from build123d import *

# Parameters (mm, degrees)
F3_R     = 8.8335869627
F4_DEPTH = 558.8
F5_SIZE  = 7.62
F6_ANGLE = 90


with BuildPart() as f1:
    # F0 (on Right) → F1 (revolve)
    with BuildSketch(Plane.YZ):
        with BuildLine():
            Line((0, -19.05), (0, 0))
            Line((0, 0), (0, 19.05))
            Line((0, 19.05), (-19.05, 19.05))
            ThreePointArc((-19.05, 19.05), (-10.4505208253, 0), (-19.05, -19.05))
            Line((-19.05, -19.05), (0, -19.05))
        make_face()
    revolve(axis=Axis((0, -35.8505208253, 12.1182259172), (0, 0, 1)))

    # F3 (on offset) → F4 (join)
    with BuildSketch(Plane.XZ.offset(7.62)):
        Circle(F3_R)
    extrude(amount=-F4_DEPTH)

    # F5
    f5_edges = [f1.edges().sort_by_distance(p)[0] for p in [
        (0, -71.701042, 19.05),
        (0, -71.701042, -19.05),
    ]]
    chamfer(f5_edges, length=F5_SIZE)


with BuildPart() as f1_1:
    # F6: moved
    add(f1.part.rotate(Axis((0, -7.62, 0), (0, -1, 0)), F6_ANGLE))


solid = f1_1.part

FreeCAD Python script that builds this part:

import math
import FreeCAD as App
import Part
import Sketcher
Q = App.Units.Quantity


def edges_at(feature, points):
    """Names of the edges that pass closest to the given points."""
    edges = feature.Shape.Edges
    near = lambda p: min(range(len(edges)), key=lambda i: edges[i].distToShape(Part.Vertex(*p))[0])
    return sorted({f"Edge{near(p) + 1}" for p in points})

doc = App.newDocument("Part")
params = doc.addObject("Spreadsheet::Sheet", "Params")
for row, (alias, value) in enumerate([
    ("sketch1_radius", "1 in"),
    ("sketch1_height", "1.5 in"),
    ("sketch1_width", "0.75 in"),
    ("revolution_angle", "360 deg"),
    ("pad1_length", "22 in"),
    ("chamfer_size", "0.3 in"),
], start=1):
    params.set(f"A{row}", alias)
    params.set(f"B{row}", "=" + value)
    params.setAlias(f"B{row}", alias)

body = doc.addObject("PartDesign::Body", "Body")

# Sketch on YZ plane
sketch1 = body.newObject("Sketcher::SketchObject", "Sketch")
sketch1.AttachmentSupport = (doc.getObject("YZ_Plane"), [""])
sketch1.MapMode = "FlatFace"
sketch1.addGeometry([
    Part.LineSegment(App.Vector(0, -19.05, 0), App.Vector(0, 19.05, 0)),
    Part.LineSegment(App.Vector(0, 19.05, 0), App.Vector(-19.05, 19.05, 0)),
    Part.ArcOfCircle(Part.Circle(App.Vector(-35.850521, 0, 0), App.Vector(0, 0, 1), 25.4), math.radians(-48.590378), math.radians(48.590378)),
    Part.LineSegment(App.Vector(-19.05, -19.05, 0), App.Vector(0, -19.05, 0)),
], False)
sketch1.addGeometry(Part.LineSegment(App.Vector(-35.850521, -19.05, 0), App.Vector(-35.850521, 19.05, 0)), True)  # axis
sketch1.addConstraint([
    Sketcher.Constraint("Coincident", 0, 2, 1, 1),
    Sketcher.Constraint("Coincident", 1, 2, 2, 2),
    Sketcher.Constraint("Coincident", 2, 1, 3, 1),
    Sketcher.Constraint("Coincident", 3, 2, 0, 1),
    Sketcher.Constraint("Vertical", 0),
    Sketcher.Constraint("Horizontal", 1),
    Sketcher.Constraint("Horizontal", 3),
    Sketcher.Constraint("Vertical", 4),
    Sketcher.Constraint("Symmetric", 0, 2, 3, 2, -1, 1),
    Sketcher.Constraint("PointOnObject", 2, 3, -1),
    Sketcher.Constraint("Horizontal", 3, 2, 4, 1),
    Sketcher.Constraint("Horizontal", 1, 2, 4, 2),
    Sketcher.Constraint("Vertical", 2, 3, 4, 1),
    Sketcher.Constraint("Radius", 2, Q("1 in")),
    Sketcher.Constraint("DistanceY", 0, 1, 0, 2, Q("1.5 in")),
    Sketcher.Constraint("DistanceX", 1, 2, 1, 1, Q("0.75 in")),
])
sketch1.setExpression("Constraints[13]", "Params.sketch1_radius")
sketch1.setExpression("Constraints[14]", "Params.sketch1_height")
sketch1.setExpression("Constraints[15]", "Params.sketch1_width")
revolution = body.newObject("PartDesign::Revolution", "Revolution")
revolution.Profile = sketch1
revolution.ReferenceAxis = (sketch1, ["Axis0"])
revolution.setExpression("Angle", "Params.revolution_angle")

# Sketch on XZ plane
sketch2 = body.newObject("Sketcher::SketchObject", "Sketch001")
sketch2.AttachmentSupport = (doc.getObject("XZ_Plane"), [""])
sketch2.MapMode = "FlatFace"
sketch2.AttachmentOffset = App.Placement(App.Vector(0, 0, 0.3 * 25.4), App.Rotation())
sketch2.addGeometry(Part.Circle(App.Vector(0, 0, 0), App.Vector(0, 0, 1), 8.833587), False)
sketch2.addConstraint([
    Sketcher.Constraint("Coincident", 0, 3, -1, 1),
    Sketcher.Constraint("Diameter", 0, Q("17.667174 mm")),
])
pad1 = body.newObject("PartDesign::Pad", "Pad")
pad1.Profile = sketch2
pad1.setExpression("Length", "Params.pad1_length")
pad1.Reversed = True
doc.recompute()

chamfer = body.newObject("PartDesign::Chamfer", "Chamfer")
chamfer.Base = (pad1, edges_at(pad1, [(0, -71.701, 19.05), (0, -71.701, -19.05)]))
chamfer.setExpression("Size", "Params.chamfer_size")
body2 = doc.addObject("PartDesign::Body", "Body001")
doc.recompute()

body.Placement = App.Placement(App.Vector(0, 0, 0), App.Rotation(App.Vector(0, -1, 0), 90))
boolean = body2.newObject("PartDesign::Boolean", "Boolean")
boolean.Type = "Fuse"
boolean.addObjects([body])

doc.recompute()
